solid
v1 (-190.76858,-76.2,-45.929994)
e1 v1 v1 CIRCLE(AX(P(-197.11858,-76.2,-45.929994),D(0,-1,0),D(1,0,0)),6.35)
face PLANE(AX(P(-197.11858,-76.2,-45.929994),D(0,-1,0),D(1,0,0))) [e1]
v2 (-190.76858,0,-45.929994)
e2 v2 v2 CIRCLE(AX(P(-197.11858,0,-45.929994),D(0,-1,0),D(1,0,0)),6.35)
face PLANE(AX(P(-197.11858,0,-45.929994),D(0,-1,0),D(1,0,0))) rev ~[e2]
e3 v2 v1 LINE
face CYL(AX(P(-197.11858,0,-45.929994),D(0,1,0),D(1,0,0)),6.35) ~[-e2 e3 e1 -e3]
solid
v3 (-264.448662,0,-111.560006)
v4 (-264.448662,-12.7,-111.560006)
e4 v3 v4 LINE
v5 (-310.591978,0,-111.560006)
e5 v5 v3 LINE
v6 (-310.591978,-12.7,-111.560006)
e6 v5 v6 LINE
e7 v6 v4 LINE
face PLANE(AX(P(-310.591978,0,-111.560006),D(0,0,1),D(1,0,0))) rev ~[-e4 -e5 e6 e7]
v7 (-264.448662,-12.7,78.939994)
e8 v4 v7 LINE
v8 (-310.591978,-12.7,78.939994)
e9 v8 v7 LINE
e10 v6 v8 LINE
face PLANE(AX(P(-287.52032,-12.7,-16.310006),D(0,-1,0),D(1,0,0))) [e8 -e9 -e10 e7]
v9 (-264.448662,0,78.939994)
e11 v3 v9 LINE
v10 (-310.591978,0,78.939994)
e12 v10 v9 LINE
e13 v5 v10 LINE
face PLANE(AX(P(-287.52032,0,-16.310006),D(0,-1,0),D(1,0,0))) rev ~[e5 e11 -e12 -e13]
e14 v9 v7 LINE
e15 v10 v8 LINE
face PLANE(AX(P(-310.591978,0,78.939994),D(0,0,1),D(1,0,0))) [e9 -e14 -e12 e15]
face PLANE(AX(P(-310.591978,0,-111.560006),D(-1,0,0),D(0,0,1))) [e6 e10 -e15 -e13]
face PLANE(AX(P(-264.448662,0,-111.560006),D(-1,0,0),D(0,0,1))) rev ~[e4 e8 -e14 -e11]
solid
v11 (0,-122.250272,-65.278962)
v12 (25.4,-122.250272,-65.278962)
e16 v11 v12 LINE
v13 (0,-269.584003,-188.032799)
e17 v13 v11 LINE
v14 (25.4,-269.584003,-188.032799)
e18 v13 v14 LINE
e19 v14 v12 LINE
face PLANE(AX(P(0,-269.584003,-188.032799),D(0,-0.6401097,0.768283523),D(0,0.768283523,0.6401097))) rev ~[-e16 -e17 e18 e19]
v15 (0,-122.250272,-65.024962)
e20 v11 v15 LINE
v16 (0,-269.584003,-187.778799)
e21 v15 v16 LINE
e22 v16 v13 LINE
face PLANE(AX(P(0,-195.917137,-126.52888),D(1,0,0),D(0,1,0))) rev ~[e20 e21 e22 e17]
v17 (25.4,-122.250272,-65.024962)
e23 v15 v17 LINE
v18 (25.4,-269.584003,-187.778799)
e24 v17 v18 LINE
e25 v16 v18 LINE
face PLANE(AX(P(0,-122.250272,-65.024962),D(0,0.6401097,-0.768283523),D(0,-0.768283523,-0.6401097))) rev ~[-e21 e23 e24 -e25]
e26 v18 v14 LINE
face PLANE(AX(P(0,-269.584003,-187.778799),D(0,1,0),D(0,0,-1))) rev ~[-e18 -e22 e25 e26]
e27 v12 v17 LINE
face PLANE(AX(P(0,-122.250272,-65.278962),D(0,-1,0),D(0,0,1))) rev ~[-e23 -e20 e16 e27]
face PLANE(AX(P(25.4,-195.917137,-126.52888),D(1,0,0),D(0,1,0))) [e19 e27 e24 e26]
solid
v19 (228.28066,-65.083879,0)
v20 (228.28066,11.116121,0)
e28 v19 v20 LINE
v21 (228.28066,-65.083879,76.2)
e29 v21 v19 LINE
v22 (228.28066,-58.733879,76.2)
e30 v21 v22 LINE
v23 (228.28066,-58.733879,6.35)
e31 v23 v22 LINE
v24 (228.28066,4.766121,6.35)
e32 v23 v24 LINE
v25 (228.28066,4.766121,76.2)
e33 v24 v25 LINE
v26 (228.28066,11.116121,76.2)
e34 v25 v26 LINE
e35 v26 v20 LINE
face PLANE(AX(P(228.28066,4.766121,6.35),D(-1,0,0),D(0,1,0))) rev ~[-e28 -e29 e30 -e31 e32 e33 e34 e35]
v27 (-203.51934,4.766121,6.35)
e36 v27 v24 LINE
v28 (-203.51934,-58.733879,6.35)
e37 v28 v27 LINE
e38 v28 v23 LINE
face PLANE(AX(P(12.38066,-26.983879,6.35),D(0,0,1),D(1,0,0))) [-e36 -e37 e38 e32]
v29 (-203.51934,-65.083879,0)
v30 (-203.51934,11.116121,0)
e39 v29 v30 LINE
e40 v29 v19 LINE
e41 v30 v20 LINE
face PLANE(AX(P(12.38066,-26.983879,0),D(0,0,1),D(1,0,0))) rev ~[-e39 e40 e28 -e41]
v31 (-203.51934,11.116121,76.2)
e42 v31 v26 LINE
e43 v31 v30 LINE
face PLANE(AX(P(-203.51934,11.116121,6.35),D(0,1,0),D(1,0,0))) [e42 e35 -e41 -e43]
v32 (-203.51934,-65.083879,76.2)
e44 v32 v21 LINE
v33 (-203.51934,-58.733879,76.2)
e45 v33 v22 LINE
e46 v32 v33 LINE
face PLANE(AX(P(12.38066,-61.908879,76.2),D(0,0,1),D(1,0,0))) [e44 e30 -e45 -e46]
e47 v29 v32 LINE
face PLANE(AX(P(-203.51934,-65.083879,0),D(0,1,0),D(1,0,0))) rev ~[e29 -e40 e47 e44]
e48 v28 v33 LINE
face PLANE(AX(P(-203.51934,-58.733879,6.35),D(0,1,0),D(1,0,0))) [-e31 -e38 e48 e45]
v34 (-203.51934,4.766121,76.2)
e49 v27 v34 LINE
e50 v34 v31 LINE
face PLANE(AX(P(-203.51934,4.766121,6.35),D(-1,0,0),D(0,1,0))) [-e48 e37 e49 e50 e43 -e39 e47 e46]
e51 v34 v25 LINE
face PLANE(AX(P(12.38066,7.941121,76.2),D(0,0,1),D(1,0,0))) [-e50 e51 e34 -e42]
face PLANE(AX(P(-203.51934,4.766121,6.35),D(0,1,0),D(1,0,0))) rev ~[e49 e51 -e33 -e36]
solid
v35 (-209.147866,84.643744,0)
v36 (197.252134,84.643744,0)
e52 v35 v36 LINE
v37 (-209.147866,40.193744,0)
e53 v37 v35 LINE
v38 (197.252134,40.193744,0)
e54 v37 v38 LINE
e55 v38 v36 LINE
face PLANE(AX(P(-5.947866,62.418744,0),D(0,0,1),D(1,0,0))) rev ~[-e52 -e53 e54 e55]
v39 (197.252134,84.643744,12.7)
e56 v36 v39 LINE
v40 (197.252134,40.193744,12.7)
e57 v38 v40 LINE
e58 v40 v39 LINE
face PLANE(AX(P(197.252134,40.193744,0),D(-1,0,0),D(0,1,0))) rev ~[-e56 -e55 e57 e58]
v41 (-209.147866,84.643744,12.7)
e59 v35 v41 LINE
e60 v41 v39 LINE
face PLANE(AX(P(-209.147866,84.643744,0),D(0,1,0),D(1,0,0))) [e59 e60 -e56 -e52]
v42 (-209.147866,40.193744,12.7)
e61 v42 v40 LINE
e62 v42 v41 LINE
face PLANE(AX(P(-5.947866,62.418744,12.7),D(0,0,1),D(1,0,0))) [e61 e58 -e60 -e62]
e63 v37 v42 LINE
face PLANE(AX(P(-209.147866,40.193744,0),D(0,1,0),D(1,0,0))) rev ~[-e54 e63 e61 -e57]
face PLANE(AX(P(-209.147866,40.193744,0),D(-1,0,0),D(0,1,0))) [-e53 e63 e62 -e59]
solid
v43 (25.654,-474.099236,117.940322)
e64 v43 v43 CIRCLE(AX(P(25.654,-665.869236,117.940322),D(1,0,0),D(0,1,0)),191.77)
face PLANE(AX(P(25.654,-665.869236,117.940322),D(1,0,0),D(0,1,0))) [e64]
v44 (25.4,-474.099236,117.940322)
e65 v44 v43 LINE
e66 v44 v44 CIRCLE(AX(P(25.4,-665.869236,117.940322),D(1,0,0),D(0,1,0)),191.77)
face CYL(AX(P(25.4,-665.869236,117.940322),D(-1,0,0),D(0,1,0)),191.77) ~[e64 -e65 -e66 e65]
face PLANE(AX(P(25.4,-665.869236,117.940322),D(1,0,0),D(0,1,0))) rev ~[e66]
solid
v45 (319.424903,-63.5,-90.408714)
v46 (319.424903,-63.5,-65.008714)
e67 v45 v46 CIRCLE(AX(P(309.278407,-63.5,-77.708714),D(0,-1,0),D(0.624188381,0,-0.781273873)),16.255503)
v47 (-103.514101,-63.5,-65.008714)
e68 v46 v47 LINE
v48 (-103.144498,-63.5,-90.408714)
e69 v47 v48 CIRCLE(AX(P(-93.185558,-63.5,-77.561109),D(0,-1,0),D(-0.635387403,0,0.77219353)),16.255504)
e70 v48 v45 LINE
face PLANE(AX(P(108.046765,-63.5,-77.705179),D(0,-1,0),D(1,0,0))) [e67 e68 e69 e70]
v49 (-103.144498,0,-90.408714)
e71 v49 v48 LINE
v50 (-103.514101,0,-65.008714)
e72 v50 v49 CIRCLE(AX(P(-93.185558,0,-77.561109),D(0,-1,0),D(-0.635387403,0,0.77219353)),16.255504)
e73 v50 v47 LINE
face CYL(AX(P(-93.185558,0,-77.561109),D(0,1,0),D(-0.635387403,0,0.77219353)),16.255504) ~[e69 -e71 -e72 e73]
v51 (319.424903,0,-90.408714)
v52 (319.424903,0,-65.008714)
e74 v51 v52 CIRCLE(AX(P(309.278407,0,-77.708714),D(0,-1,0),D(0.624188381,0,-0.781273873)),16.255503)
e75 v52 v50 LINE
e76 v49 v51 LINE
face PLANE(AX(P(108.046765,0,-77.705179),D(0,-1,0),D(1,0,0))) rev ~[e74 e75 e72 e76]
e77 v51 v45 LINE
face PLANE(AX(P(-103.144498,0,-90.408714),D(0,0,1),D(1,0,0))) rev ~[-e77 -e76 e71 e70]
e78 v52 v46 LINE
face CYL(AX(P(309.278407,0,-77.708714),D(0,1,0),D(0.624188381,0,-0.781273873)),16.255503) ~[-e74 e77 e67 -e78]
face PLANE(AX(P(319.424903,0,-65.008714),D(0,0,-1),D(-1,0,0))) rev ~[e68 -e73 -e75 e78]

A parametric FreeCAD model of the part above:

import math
import FreeCAD as App
import Part
import Sketcher
Q = App.Units.Quantity

doc = App.newDocument("Part")
body = doc.addObject("PartDesign::Body", "Body")

sketch1 = body.newObject("Sketcher::SketchObject", "Sketch")
sketch1.AttachmentSupport = (doc.getObject("XY_Plane"), [""])
sketch1.MapMode = "FlatFace"
sketch1.addGeometry(Part.LineSegment(App.Vector(-203.51934, 11.116121, 0), App.Vector(-203.51934, -65.083879, 0)), False)
sketch1.addGeometry(Part.LineSegment(App.Vector(-203.51934, -65.083879, 0), App.Vector(228.28066, -65.083879, 0)), False)
sketch1.addGeometry(Part.LineSegment(App.Vector(228.28066, -65.083879, 0), App.Vector(228.28066, 11.116121, 0)), False)
sketch1.addGeometry(Part.LineSegment(App.Vector(228.28066, 11.116121, 0), App.Vector(-203.51934, 11.116121, 0)), False)
sketch1.addConstraint(Sketcher.Constraint("Coincident", 0, 2, 1, 1))
sketch1.addConstraint(Sketcher.Constraint("Coincident", 1, 2, 2, 1))
sketch1.addConstraint(Sketcher.Constraint("Coincident", 2, 2, 3, 1))
sketch1.addConstraint(Sketcher.Constraint("Coincident", 3, 2, 0, 1))
sketch1.addConstraint(Sketcher.Constraint("Vertical", 0))
sketch1.addConstraint(Sketcher.Constraint("Horizontal", 1))
sketch1.addConstraint(Sketcher.Constraint("Vertical", 2))
sketch1.addConstraint(Sketcher.Constraint("Horizontal", 3))
sketch1.addConstraint(Sketcher.Constraint("DistanceX", 1, 1, 1, 2, Q("17 in")))
sketch1.addConstraint(Sketcher.Constraint("DistanceY", 0, 2, 0, 1, Q("3 in")))
sketch1.addConstraint(Sketcher.Constraint("DistanceX", 0, 2, -1, 1, 203.51934))
sketch1.addConstraint(Sketcher.Constraint("DistanceY", 0, 2, -1, 1, 65.083879))
pad1 = body.newObject("PartDesign::Pad", "Pad")
pad1.Profile = sketch1
pad1.Length = Q("0.25 in")

sketch2 = body.newObject("Sketcher::SketchObject", "Sketch001")
sketch2.AttachmentSupport = (doc.getObject("XY_Plane"), [""])
sketch2.MapMode = "FlatFace"
sketch2.AttachmentOffset = App.Placement(App.Vector(0, 0, 0.25 * 25.4), App.Rotation())
sketch2.addGeometry(Part.LineSegment(App.Vector(-203.51934, 11.116121, 0), App.Vector(-203.51934, 4.766121, 0)), False)
sketch2.addGeometry(Part.LineSegment(App.Vector(-203.51934, 4.766121, 0), App.Vector(228.28066, 4.766121, 0)), False)
sketch2.addGeometry(Part.LineSegment(App.Vector(228.28066, 4.766121, 0), App.Vector(228.28066, 11.116121, 0)), False)
sketch2.addGeometry(Part.LineSegment(App.Vector(228.28066, 11.116121, 0), App.Vector(-203.51934, 11.116121, 0)), False)
sketch2.addGeometry(Part.LineSegment(App.Vector(-203.51934, -58.733879, 0), App.Vector(-203.51934, -65.083879, 0)), False)
sketch2.addGeometry(Part.LineSegment(App.Vector(-203.51934, -65.083879, 0), App.Vector(228.28066, -65.083879, 0)), False)
sketch2.addGeometry(Part.LineSegment(App.Vector(228.28066, -65.083879, 0), App.Vector(228.28066, -58.733879, 0)), False)
sketch2.addGeometry(Part.LineSegment(App.Vector(228.28066, -58.733879, 0), App.Vector(-203.51934, -58.733879, 0)), False)
sketch2.addConstraint(Sketcher.Constraint("Coincident", 0, 2, 1, 1))
sketch2.addConstraint(Sketcher.Constraint("Coincident", 1, 2, 2, 1))
sketch2.addConstraint(Sketcher.Constraint("Coincident", 2, 2, 3, 1))
sketch2.addConstraint(Sketcher.Constraint("Coincident", 3, 2, 0, 1))
sketch2.addConstraint(Sketcher.Constraint("Coincident", 4, 2, 5, 1))
sketch2.addConstraint(Sketcher.Constraint("Coincident", 5, 2, 6, 1))
sketch2.addConstraint(Sketcher.Constraint("Coincident", 6, 2, 7, 1))
sketch2.addConstraint(Sketcher.Constraint("Coincident", 7, 2, 4, 1))
sketch2.addConstraint(Sketcher.Constraint("Vertical", 0))
sketch2.addConstraint(Sketcher.Constraint("Horizontal", 1))
sketch2.addConstraint(Sketcher.Constraint("Vertical", 2))
sketch2.addConstraint(Sketcher.Constraint("Horizontal", 3))
sketch2.addConstraint(Sketcher.Constraint("Vertical", 4))
sketch2.addConstraint(Sketcher.Constraint("Horizontal", 5))
sketch2.addConstraint(Sketcher.Constraint("Vertical", 6))
sketch2.addConstraint(Sketcher.Constraint("Horizontal", 7))
sketch2.addConstraint(Sketcher.Constraint("Vertical", 3, 2, 4, 2))
sketch2.addConstraint(Sketcher.Constraint("Vertical", 2, 2, 5, 2))
sketch2.addConstraint(Sketcher.Constraint("Equal", 2, 4))
sketch2.addConstraint(Sketcher.Constraint("DistanceX", 1, 1, 1, 2, Q("17 in")))
sketch2.addConstraint(Sketcher.Constraint("DistanceY", 4, 2, 3, 2, Q("3 in")))
sketch2.addConstraint(Sketcher.Constraint("DistanceY", 0, 2, 0, 1, Q("0.25 in")))
sketch2.addConstraint(Sketcher.Constraint("DistanceX", 0, 2, -1, 1, 203.51934))
sketch2.addConstraint(Sketcher.Constraint("DistanceY", -1, 1, 0, 2, 4.766121))
pad2 = body.newObject("PartDesign::Pad", "Pad001")
pad2.Profile = sketch2
pad2.Length = Q("2.75 in")
body2 = doc.addObject("PartDesign::Body", "Body001")

sketch3 = body2.newObject("Sketcher::SketchObject", "Sketch002")
sketch3.AttachmentSupport = (doc.getObject("XY_Plane001"), [""])
sketch3.MapMode = "FlatFace"
sketch3.addGeometry(Part.LineSegment(App.Vector(-209.147866, 84.643744, 0), App.Vector(-209.147866, 40.193744, 0)), False)
sketch3.addGeometry(Part.LineSegment(App.Vector(-209.147866, 40.193744, 0), App.Vector(197.252134, 40.193744, 0)), False)
sketch3.addGeometry(Part.LineSegment(App.Vector(197.252134, 40.193744, 0), App.Vector(197.252134, 84.643744, 0)), False)
sketch3.addGeometry(Part.LineSegment(App.Vector(197.252134, 84.643744, 0), App.Vector(-209.147866, 84.643744, 0)), False)
sketch3.addConstraint(Sketcher.Constraint("Coincident", 0, 2, 1, 1))
sketch3.addConstraint(Sketcher.Constraint("Coincident", 1, 2, 2, 1))
sketch3.addConstraint(Sketcher.Constraint("Coincident", 2, 2, 3, 1))
sketch3.addConstraint(Sketcher.Constraint("Coincident", 3, 2, 0, 1))
sketch3.addConstraint(Sketcher.Constraint("Vertical", 0))
sketch3.addConstraint(Sketcher.Constraint("Horizontal", 1))
sketch3.addConstraint(Sketcher.Constraint("Vertical", 2))
sketch3.addConstraint(Sketcher.Constraint("Horizontal", 3))
sketch3.addConstraint(Sketcher.Constraint("DistanceX", 1, 1, 1, 2, Q("16 in")))
sketch3.addConstraint(Sketcher.Constraint("DistanceY", 0, 2, 0, 1, Q("1.75 in")))
sketch3.addConstraint(Sketcher.Constraint("DistanceX", 0, 2, -1, 1, 209.147866))
sketch3.addConstraint(Sketcher.Constraint("DistanceY", -1, 1, 0, 2, 40.193744))
pad3 = body2.newObject("PartDesign::Pad", "Pad002")
pad3.Profile = sketch3
pad3.Length = Q("0.5 in")
body3 = doc.addObject("PartDesign::Body", "Body002")

sketch4 = body3.newObject("Sketcher::SketchObject", "Sketch003")
sketch4.AttachmentSupport = (doc.getObject("XZ_Plane002"), [""])
sketch4.MapMode = "FlatFace"
sketch4.addGeometry(Part.Circle(App.Vector(-197.11858, -45.929994, 0), App.Vector(0, 0, 1), 6.35), False)
sketch4.addConstraint(Sketcher.Constraint("Diameter", 0, Q("0.5 in")))
sketch4.addConstraint(Sketcher.Constraint("DistanceX", 0, 3, -1, 1, 197.11858))
sketch4.addConstraint(Sketcher.Constraint("DistanceY", 0, 3, -1, 1, 45.929994))
pad4 = body3.newObject("PartDesign::Pad", "Pad003")
pad4.Profile = sketch4
pad4.Length = Q("3 in")
body4 = doc.addObject("PartDesign::Body", "Body003")

sketch5 = body4.newObject("Sketcher::SketchObject", "Sketch004")
sketch5.AttachmentSupport = (doc.getObject("XZ_Plane003"), [""])
sketch5.MapMode = "FlatFace"
sketch5.addGeometry(Part.ArcOfCircle(Part.Circle(App.Vector(309.278407, -77.708714, 0), App.Vector(0, 0, 1), 16.255503), math.radians(-51.377358), math.radians(51.377358)), False)
sketch5.addGeometry(Part.LineSegment(App.Vector(319.424903, -65.008714, 0), App.Vector(-103.514101, -65.008714, 0)), False)
sketch5.addGeometry(Part.ArcOfCircle(Part.Circle(App.Vector(-93.185558, -77.561109, 0), App.Vector(0, 0, 1), 16.255504), math.radians(129.448723), math.radians(232.218615)), False)
sketch5.addGeometry(Part.LineSegment(App.Vector(-103.144498, -90.408714, 0), App.Vector(319.424903, -90.408714, 0)), False)
sketch5.addConstraint(Sketcher.Constraint("Coincident", 0, 2, 1, 1))
sketch5.addConstraint(Sketcher.Constraint("Coincident", 1, 2, 2, 1))
sketch5.addConstraint(Sketcher.Constraint("Coincident", 2, 2, 3, 1))
sketch5.addConstraint(Sketcher.Constraint("Coincident", 3, 2, 0, 1))
sketch5.addConstraint(Sketcher.Constraint("Horizontal", 1))
sketch5.addConstraint(Sketcher.Constraint("Horizontal", 3))
sketch5.addConstraint(Sketcher.Constraint("Equal", 0, 2))
sketch5.addConstraint(Sketcher.Constraint("Vertical", 0, 2, 3, 2))
sketch5.addConstraint(Sketcher.Constraint("DistanceY", 2, 2, 1, 2, Q("1 in")))
sketch5.addConstraint(Sketcher.Constraint("DistanceX", 3, 1, 3, 2, 422.569401))
sketch5.addConstraint(Sketcher.Constraint("Radius", 0, 16.255503))
sketch5.addConstraint(Sketcher.Constraint("DistanceX", 1, 2, -1, 1, 103.514101))
sketch5.addConstraint(Sketcher.Constraint("DistanceX", 1, 2, 1, 1, 422.939004))
sketch5.addConstraint(Sketcher.Constraint("DistanceY", 2, 3, -1, 1, 77.561109))
pad5 = body4.newObject("PartDesign::Pad", "Pad004")
pad5.Profile = sketch5
pad5.Length = Q("2.5 in")
body5 = doc.addObject("PartDesign::Body", "Body004")

sketch6 = body5.newObject("Sketcher::SketchObject", "Sketch005")
sketch6.AttachmentSupport = (doc.getObject("XZ_Plane004"), [""])
sketch6.MapMode = "FlatFace"
sketch6.addGeometry(Part.LineSegment(App.Vector(-310.591978, 78.939994, 0), App.Vector(-310.591978, -111.560006, 0)), False)
sketch6.addGeometry(Part.LineSegment(App.Vector(-310.591978, -111.560006, 0), App.Vector(-264.448662, -111.560006, 0)), False)
sketch6.addGeometry(Part.LineSegment(App.Vector(-264.448662, -111.560006, 0), App.Vector(-264.448662, 78.939994, 0)), False)
sketch6.addGeometry(Part.LineSegment(App.Vector(-264.448662, 78.939994, 0), App.Vector(-310.591978, 78.939994, 0)), False)
sketch6.addConstraint(Sketcher.Constraint("Coincident", 0, 2, 1, 1))
sketch6.addConstraint(Sketcher.Constraint("Coincident", 1, 2, 2, 1))
sketch6.addConstraint(Sketcher.Constraint("Coincident", 2, 2, 3, 1))
sketch6.addConstraint(Sketcher.Constraint("Coincident", 3, 2, 0, 1))
sketch6.addConstraint(Sketcher.Constraint("Vertical", 0))
sketch6.addConstraint(Sketcher.Constraint("Horizontal", 1))
sketch6.addConstraint(Sketcher.Constraint("Vertical", 2))
sketch6.addConstraint(Sketcher.Constraint("Horizontal", 3))
sketch6.addConstraint(Sketcher.Constraint("DistanceY", 0, 2, 0, 1, Q("7.5 in")))
sketch6.addConstraint(Sketcher.Constraint("DistanceX", 1, 1, 1, 2, 46.143317))
sketch6.addConstraint(Sketcher.Constraint("DistanceX", 0, 2, -1, 1, 310.591978))
sketch6.addConstraint(Sketcher.Constraint("DistanceY", 0, 2, -1, 1, 111.560006))
pad6 = body5.newObject("PartDesign::Pad", "Pad005")
pad6.Profile = sketch6
pad6.Length = Q("0.5 in")
body6 = doc.addObject("PartDesign::Body", "Body005")

sketch7 = body6.newObject("Sketcher::SketchObject", "Sketch006")
sketch7.AttachmentSupport = (doc.getObject("YZ_Plane005"), [""])
sketch7.MapMode = "FlatFace"
sketch7.addGeometry(Part.LineSegment(App.Vector(-122.250272, -65.024962, 0), App.Vector(-269.584003, -187.778799, 0)), False)
sketch7.addGeometry(Part.LineSegment(App.Vector(-269.584003, -187.778799, 0), App.Vector(-269.584003, -188.032799, 0)), False)
sketch7.addGeometry(Part.LineSegment(App.Vector(-269.584003, -188.032799, 0), App.Vector(-122.250272, -65.278962, 0)), False)
sketch7.addGeometry(Part.LineSegment(App.Vector(-122.250272, -65.278962, 0), App.Vector(-122.250272, -65.024962, 0)), False)
sketch7.addConstraint(Sketcher.Constraint("Coincident", 0, 2, 1, 1))
sketch7.addConstraint(Sketcher.Constraint("Coincident", 1, 2, 2, 1))
sketch7.addConstraint(Sketcher.Constraint("Coincident", 2, 2, 3, 1))
sketch7.addConstraint(Sketcher.Constraint("Coincident", 3, 2, 0, 1))
sketch7.addConstraint(Sketcher.Constraint("Vertical", 1))
sketch7.addConstraint(Sketcher.Constraint("Vertical", 3))
sketch7.addConstraint(Sketcher.Constraint("Parallel", 0, 2))
sketch7.addConstraint(Sketcher.Constraint("DistanceY", 1, 2, 1, 1, Q("0.01 in")))
sketch7.addConstraint(Sketcher.Constraint("Angle", 0, Q("-140.2 deg")))
sketch7.addConstraint(Sketcher.Constraint("Distance", 0, Q("7.55 in")))
sketch7.addConstraint(Sketcher.Constraint("DistanceY", 0, 2, -1, 1, 187.778799))
sketch7.addConstraint(Sketcher.Constraint("DistanceX", 2, 2, -1, 1, 122.250272))
pad7 = body6.newObject("PartDesign::Pad", "Pad006")
pad7.Profile = sketch7
pad7.Length = Q("1 in")
body7 = doc.addObject("PartDesign::Body", "Body006")

sketch8 = body7.newObject("Sketcher::SketchObject", "Sketch007")
sketch8.AttachmentSupport = (doc.getObject("YZ_Plane006"), [""])
sketch8.MapMode = "FlatFace"
sketch8.AttachmentOffset = App.Placement(App.Vector(0, 0, 1 * 25.4), App.Rotation())
sketch8.addGeometry(Part.Circle(App.Vector(-665.869236, 117.940322, 0), App.Vector(0, 0, 1), 191.77), False)
sketch8.addConstraint(Sketcher.Constraint("Diameter", 0, Q("15.1 in")))
sketch8.addConstraint(Sketcher.Constraint("DistanceY", -1, 1, 0, 3, 117.940322))
sketch8.addConstraint(Sketcher.Constraint("DistanceX", 0, 3, -1, 1, 665.869236))
pad8 = body7.newObject("PartDesign::Pad", "Pad007")
pad8.Profile = sketch8
pad8.Length = Q("0.01 in")

doc.recompute()
